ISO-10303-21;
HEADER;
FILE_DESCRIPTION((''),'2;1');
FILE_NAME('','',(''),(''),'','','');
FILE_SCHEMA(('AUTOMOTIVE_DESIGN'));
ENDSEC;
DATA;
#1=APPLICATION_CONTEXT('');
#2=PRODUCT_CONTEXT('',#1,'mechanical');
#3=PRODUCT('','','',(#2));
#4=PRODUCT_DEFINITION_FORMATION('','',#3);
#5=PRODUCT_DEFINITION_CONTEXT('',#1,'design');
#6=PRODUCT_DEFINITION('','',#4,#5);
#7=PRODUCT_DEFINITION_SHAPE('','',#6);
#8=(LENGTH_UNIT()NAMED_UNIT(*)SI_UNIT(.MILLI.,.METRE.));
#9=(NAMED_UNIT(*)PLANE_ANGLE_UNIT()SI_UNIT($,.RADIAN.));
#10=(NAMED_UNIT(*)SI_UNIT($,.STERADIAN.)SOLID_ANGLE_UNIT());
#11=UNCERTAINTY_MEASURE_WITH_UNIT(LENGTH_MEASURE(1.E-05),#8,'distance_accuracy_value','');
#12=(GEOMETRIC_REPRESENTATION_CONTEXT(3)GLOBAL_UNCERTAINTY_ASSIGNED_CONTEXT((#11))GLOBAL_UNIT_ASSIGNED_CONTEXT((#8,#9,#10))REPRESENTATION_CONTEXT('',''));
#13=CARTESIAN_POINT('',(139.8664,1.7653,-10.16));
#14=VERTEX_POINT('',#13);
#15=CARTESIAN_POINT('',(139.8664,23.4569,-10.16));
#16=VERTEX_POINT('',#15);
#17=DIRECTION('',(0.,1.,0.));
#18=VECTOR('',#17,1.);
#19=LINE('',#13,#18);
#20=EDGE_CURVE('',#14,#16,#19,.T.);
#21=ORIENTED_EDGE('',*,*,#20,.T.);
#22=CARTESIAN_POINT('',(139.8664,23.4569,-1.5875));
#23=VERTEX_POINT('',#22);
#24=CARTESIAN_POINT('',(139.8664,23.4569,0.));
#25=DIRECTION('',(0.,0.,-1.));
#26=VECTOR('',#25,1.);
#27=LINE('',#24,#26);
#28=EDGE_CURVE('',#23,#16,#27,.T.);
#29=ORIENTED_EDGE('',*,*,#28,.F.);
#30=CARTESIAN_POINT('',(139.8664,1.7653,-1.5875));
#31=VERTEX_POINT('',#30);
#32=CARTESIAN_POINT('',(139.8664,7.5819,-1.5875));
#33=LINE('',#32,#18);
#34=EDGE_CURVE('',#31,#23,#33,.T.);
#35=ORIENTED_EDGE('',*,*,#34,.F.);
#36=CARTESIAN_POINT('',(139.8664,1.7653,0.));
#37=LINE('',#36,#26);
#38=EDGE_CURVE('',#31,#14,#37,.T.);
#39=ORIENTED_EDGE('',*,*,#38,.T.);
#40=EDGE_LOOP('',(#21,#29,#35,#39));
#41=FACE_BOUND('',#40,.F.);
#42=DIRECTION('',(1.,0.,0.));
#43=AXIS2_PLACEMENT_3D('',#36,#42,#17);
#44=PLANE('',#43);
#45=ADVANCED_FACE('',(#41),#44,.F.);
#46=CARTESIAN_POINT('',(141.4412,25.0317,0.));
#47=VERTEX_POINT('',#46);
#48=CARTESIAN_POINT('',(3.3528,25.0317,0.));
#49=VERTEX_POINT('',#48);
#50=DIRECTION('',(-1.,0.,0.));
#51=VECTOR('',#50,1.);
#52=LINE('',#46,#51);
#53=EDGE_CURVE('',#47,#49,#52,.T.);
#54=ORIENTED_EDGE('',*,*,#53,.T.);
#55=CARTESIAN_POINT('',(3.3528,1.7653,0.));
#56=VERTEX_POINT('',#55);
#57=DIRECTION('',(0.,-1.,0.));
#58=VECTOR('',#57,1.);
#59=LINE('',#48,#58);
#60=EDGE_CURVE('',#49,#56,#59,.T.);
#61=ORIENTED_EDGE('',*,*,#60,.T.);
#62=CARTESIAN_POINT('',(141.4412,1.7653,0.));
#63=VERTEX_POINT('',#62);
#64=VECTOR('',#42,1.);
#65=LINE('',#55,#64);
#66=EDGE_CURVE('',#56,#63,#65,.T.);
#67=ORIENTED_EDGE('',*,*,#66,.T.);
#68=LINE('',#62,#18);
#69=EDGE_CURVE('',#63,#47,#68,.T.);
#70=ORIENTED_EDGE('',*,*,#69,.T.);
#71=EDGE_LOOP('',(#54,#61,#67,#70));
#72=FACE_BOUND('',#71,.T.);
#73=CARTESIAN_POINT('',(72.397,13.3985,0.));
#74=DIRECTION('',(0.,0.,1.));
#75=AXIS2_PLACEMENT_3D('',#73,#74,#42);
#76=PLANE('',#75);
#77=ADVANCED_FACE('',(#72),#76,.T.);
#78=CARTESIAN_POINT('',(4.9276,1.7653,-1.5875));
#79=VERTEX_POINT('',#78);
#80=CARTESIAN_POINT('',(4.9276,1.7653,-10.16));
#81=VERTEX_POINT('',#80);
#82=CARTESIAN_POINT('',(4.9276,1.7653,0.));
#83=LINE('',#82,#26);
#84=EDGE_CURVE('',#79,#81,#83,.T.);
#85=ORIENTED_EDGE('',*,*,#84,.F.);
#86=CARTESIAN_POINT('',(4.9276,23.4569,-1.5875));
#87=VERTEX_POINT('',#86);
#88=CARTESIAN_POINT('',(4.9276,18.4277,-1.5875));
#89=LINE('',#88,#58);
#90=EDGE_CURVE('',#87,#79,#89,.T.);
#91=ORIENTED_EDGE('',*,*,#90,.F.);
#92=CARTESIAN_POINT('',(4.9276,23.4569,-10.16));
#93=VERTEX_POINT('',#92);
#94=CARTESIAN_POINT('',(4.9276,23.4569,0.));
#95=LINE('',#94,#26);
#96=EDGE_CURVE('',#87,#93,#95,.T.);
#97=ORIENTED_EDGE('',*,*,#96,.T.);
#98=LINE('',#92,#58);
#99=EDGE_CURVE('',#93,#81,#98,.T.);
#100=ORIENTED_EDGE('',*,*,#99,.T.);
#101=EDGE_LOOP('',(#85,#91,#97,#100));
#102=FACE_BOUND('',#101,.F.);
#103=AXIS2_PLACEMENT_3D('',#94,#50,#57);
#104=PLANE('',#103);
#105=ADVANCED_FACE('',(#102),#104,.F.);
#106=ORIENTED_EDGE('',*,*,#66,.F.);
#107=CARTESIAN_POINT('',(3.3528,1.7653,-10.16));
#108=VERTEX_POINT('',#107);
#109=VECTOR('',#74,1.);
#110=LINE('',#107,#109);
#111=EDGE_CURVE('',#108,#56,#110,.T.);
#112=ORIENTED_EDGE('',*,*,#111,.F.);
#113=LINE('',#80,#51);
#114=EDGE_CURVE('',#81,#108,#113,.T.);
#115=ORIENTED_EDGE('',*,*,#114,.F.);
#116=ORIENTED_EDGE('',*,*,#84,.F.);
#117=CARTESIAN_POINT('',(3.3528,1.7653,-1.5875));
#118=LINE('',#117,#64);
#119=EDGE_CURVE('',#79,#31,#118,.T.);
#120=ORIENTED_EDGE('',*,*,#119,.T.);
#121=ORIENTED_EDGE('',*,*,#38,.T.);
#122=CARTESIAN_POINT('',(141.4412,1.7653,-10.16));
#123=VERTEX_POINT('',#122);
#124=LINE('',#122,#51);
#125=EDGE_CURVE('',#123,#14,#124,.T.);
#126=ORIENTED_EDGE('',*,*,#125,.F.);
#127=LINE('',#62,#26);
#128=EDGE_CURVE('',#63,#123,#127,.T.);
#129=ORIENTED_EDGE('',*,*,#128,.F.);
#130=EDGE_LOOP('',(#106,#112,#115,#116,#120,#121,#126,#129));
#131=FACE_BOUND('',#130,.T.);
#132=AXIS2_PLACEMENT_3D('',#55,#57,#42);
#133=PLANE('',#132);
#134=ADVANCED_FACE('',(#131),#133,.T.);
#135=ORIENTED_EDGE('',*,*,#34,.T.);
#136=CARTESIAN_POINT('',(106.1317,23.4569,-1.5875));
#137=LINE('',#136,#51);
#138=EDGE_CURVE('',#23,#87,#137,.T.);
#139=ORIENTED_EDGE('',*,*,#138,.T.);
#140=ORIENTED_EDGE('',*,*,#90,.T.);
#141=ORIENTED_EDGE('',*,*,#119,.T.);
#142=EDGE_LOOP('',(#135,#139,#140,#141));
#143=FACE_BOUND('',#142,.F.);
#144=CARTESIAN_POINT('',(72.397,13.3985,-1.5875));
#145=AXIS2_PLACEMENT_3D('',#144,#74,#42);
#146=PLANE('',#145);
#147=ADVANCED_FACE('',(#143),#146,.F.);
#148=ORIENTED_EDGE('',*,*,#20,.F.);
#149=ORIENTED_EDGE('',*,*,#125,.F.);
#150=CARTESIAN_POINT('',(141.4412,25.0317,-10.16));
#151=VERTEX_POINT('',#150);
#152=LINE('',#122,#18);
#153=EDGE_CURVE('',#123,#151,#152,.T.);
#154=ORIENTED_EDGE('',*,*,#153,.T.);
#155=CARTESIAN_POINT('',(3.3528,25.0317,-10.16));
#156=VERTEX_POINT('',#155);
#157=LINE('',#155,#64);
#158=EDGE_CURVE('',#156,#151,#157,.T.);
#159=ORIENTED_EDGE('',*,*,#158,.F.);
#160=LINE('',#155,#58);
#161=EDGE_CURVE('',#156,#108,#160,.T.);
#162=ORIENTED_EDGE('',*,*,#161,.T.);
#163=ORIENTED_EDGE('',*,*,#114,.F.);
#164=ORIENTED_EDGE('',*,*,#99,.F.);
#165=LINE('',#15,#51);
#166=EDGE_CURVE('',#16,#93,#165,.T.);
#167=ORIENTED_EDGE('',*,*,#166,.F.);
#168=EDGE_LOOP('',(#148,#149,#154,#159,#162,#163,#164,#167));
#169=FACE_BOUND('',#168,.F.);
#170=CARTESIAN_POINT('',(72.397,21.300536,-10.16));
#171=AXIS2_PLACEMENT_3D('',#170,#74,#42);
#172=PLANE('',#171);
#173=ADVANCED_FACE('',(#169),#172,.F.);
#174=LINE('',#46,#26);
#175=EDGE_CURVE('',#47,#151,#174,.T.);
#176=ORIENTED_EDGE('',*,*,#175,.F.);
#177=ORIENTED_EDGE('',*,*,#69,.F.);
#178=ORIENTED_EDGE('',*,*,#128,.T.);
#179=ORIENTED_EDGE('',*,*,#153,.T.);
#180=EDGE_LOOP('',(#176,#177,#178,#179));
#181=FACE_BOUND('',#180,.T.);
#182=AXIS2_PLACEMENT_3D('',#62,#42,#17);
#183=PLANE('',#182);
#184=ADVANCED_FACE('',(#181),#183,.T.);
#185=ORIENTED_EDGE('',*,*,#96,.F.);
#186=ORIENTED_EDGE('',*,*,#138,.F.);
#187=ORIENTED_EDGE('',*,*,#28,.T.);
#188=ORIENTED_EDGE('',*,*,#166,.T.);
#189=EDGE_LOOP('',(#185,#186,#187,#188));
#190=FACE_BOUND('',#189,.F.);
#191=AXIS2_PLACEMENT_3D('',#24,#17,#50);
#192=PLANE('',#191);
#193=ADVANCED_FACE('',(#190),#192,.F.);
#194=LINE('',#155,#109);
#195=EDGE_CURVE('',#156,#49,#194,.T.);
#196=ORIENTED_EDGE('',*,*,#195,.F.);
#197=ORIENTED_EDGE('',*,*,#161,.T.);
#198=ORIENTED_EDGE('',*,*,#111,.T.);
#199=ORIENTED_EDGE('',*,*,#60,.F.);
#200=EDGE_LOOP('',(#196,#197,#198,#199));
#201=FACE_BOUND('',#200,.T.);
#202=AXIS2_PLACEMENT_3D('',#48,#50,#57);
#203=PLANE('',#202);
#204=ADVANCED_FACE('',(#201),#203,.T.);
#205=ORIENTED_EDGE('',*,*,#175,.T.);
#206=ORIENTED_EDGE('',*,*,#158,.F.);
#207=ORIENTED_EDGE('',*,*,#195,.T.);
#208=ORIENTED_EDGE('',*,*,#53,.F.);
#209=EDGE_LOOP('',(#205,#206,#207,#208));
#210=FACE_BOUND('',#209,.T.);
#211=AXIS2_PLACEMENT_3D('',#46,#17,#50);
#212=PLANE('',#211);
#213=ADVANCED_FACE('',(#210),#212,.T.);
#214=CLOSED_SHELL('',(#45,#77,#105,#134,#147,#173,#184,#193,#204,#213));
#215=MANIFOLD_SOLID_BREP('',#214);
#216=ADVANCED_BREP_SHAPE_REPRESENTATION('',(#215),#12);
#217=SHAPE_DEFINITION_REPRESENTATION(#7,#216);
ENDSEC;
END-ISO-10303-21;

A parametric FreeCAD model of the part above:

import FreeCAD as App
import Part
import Sketcher
Q = App.Units.Quantity


def add_polygon(sketch, points):
    """Adds a closed chain of lines whose ends are joined by coincident constraints."""
    first, n = sketch.GeometryCount, len(points)
    for a, b in zip(points, points[1:] + points[:1]):
        sketch.addGeometry(Part.LineSegment(App.Vector(*a, 0), App.Vector(*b, 0)), False)
    for i in range(n):
        sketch.addConstraint(Sketcher.Constraint("Coincident", first + i, 2, first + (i + 1) % n, 1))

doc = App.newDocument("Part")
body = doc.addObject("PartDesign::Body", "Body")

sketch1 = body.newObject("Sketcher::SketchObject", "Sketch")
sketch1.AttachmentSupport = (doc.getObject("XY_Plane"), [""])
sketch1.MapMode = "FlatFace"
add_polygon(sketch1, [(141.4412, 1.7653), (141.4412, 25.0317), (3.3528, 25.0317), (3.3528, 1.7653)])
sketch1.addConstraint(Sketcher.Constraint("Vertical", 0))
sketch1.addConstraint(Sketcher.Constraint("Horizontal", 1))
sketch1.addConstraint(Sketcher.Constraint("Vertical", 2))
sketch1.addConstraint(Sketcher.Constraint("Horizontal", 3))
sketch1.addConstraint(Sketcher.Constraint("DistanceY", 0, 1, 0, 2, Q("0.916 in")))
sketch1.addConstraint(Sketcher.Constraint("DistanceX", -1, 1, 1, 2, Q("0.132 in")))
sketch1.addConstraint(Sketcher.Constraint("DistanceX", 1, 2, 1, 1, 138.0884))
sketch1.addConstraint(Sketcher.Constraint("DistanceY", -1, 1, 0, 2, Q("0.9855 in")))
pad1 = body.newObject("PartDesign::Pad", "Pad")
pad1.Profile = sketch1
pad1.Length = Q("0.0625 in")
pad1.Reversed = True

sketch2 = body.newObject("Sketcher::SketchObject", "Sketch001")
sketch2.AttachmentSupport = (doc.getObject("XY_Plane"), [""])
sketch2.MapMode = "FlatFace"
add_polygon(sketch2, [(139.8664, 1.7653), (141.4412, 1.7653), (141.4412, 25.0317), (3.3528, 25.0317), (3.3528, 1.7653), (4.9276, 1.7653), (4.9276, 23.4569), (139.8664, 23.4569)])
sketch2.addConstraint(Sketcher.Constraint("Horizontal", 0))
sketch2.addConstraint(Sketcher.Constraint("Vertical", 1))
sketch2.addConstraint(Sketcher.Constraint("Horizontal", 2))
sketch2.addConstraint(Sketcher.Constraint("Vertical", 3))
sketch2.addConstraint(Sketcher.Constraint("Horizontal", 4))
sketch2.addConstraint(Sketcher.Constraint("Vertical", 5))
sketch2.addConstraint(Sketcher.Constraint("Horizontal", 6))
sketch2.addConstraint(Sketcher.Constraint("Vertical", 7))
sketch2.addConstraint(Sketcher.Constraint("Horizontal", 0, 2, 3, 2))
sketch2.addConstraint(Sketcher.Constraint("Equal", 0, 4))
sketch2.addConstraint(Sketcher.Constraint("DistanceX", 0, 1, 0, 2, Q("0.062 in")))
sketch2.addConstraint(Sketcher.Constraint("DistanceY", 1, 1, 1, 2, Q("0.916 in")))
sketch2.addConstraint(Sketcher.Constraint("DistanceY", 5, 1, 5, 2, Q("0.854 in")))
sketch2.addConstraint(Sketcher.Constraint("DistanceX", -1, 1, 2, 2, Q("0.132 in")))
sketch2.addConstraint(Sketcher.Constraint("DistanceX", 2, 2, 2, 1, 138.0884))
sketch2.addConstraint(Sketcher.Constraint("DistanceY", -1, 1, 0, 2, Q("0.0695 in")))
pad2 = body.newObject("PartDesign::Pad", "Pad001")
pad2.Profile = sketch2
pad2.Length = Q("0.4 in")
pad2.Reversed = True

doc.recompute()
